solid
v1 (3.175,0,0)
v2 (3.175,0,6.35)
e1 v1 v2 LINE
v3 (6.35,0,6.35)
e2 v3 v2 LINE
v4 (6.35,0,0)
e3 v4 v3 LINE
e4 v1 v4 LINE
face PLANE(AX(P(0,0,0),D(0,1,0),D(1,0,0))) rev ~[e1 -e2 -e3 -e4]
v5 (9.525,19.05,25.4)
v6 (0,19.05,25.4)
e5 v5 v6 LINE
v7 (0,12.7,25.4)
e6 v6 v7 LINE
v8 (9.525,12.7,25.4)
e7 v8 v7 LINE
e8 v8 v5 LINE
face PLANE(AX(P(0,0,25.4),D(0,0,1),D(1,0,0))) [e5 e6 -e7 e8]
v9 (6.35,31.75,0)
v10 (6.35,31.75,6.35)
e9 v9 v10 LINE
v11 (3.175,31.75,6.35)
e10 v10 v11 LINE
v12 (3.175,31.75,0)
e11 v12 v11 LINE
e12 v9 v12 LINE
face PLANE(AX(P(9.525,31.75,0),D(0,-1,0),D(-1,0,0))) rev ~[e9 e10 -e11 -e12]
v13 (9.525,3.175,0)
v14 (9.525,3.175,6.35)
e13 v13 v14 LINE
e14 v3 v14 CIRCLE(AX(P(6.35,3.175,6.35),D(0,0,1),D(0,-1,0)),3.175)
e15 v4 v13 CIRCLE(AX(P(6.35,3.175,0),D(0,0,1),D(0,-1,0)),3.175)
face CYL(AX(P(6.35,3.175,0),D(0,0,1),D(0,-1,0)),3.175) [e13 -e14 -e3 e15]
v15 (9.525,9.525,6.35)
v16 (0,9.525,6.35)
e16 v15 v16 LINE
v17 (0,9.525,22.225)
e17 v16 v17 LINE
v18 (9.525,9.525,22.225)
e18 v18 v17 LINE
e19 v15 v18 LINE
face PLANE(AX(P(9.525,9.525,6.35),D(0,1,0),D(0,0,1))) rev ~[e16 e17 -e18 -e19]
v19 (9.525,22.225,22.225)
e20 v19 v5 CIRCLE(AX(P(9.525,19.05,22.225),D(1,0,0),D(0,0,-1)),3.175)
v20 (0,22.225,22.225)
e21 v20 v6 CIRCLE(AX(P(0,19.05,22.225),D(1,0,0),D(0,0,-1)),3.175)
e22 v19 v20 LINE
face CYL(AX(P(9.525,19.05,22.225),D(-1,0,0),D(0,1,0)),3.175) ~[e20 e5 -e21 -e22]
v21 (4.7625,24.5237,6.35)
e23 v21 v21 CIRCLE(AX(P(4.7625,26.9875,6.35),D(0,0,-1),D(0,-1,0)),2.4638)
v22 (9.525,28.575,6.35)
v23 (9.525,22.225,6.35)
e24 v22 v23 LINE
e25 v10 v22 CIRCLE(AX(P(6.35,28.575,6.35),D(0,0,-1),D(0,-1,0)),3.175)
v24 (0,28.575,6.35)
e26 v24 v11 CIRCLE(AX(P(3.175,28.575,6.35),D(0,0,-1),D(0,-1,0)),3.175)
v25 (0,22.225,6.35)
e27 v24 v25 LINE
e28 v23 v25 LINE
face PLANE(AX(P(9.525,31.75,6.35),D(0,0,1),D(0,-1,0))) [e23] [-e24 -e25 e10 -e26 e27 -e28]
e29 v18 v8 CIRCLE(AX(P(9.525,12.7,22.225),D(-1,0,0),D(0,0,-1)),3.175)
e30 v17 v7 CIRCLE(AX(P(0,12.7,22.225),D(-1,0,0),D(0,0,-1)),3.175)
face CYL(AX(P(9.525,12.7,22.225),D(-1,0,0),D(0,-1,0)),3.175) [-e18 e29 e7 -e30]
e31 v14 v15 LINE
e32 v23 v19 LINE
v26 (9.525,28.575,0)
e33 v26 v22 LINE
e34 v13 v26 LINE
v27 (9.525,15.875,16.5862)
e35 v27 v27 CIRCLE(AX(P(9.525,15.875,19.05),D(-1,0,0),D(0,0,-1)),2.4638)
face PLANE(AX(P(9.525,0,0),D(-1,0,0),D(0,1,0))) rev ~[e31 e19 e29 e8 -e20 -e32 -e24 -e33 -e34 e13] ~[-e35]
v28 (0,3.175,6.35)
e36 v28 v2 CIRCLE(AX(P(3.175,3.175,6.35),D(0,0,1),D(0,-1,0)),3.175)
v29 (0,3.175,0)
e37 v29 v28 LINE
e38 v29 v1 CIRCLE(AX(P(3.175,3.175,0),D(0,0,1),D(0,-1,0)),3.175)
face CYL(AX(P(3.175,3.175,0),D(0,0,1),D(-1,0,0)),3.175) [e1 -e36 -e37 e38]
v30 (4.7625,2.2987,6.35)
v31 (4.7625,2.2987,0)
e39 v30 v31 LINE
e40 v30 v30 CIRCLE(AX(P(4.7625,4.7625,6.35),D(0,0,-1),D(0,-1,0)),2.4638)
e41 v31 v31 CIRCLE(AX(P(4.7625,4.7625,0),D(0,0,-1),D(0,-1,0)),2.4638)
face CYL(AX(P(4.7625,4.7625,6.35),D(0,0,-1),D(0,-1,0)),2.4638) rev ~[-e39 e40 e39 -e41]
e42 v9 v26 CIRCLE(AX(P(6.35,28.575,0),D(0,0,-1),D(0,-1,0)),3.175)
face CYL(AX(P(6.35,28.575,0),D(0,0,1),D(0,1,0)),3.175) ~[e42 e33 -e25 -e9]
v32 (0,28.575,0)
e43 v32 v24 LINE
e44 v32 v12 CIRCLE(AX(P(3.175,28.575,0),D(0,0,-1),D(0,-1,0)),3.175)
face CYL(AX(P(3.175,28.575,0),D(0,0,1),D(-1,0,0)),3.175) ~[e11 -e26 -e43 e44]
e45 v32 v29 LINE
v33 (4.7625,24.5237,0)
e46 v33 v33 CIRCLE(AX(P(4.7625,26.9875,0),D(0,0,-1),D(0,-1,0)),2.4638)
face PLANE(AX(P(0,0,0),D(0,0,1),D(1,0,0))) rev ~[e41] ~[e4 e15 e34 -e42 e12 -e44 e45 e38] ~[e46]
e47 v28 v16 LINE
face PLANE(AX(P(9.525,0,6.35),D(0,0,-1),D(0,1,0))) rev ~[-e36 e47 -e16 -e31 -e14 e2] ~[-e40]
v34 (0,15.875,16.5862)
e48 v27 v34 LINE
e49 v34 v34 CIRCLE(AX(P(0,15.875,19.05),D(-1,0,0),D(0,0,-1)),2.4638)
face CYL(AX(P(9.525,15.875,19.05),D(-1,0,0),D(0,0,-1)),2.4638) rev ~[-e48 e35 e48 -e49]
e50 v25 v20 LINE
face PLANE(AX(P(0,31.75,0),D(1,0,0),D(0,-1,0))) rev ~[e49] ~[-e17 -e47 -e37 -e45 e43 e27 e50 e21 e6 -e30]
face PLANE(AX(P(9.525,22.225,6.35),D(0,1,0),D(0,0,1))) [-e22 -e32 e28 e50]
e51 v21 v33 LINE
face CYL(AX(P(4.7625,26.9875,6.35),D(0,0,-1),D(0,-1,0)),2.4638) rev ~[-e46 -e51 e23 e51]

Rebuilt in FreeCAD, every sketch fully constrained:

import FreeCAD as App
import Part
import Sketcher
Q = App.Units.Quantity


def edges_at(feature, points):
    """Names of the edges that pass closest to the given points."""
    edges = feature.Shape.Edges
    near = lambda p: min(range(len(edges)), key=lambda i: edges[i].distToShape(Part.Vertex(*p))[0])
    return sorted({f"Edge{near(p) + 1}" for p in points})

doc = App.newDocument("Part")
params = doc.addObject("Spreadsheet::Sheet", "Params")
for row, (alias, value) in enumerate([
    ("sketch1_height", "1.25 in"),
    ("sketch1_width", "0.375 in"),
    ("pad1_length", "1 in"),
    ("sketch2_height", "0.75 in"),
    ("sketch2_width", "0.375 in"),
    ("pocket1_length", "1 in"),
    ("fillet_radius", "0.125 in"),
    ("fillet2_radius", "0.125 in"),
    ("sketch3_diameter", "0.194 in"),
    ("hole_diameter", "0.194 in"),
    ("hole_depth", "1 in"),
    ("sketch4_diameter", "0.194 in"),
    ("hole2_diameter", "0.194 in"),
    ("hole2_depth", "1 in"),
], start=1):
    params.set(f"A{row}", alias)
    params.set(f"B{row}", "=" + value)
    params.setAlias(f"B{row}", alias)

body = doc.addObject("PartDesign::Body", "Body")

# Sketch on XY plane
sketch1 = body.newObject("Sketcher::SketchObject", "Sketch")
sketch1.AttachmentSupport = (doc.getObject("XY_Plane"), [""])
sketch1.MapMode = "FlatFace"
sketch1.addGeometry(Part.LineSegment(App.Vector(0, 31.75, 0), App.Vector(0, 0, 0)), False)
sketch1.addGeometry(Part.LineSegment(App.Vector(0, 0, 0), App.Vector(9.525, 0, 0)), False)
sketch1.addGeometry(Part.LineSegment(App.Vector(9.525, 0, 0), App.Vector(9.525, 31.75, 0)), False)
sketch1.addGeometry(Part.LineSegment(App.Vector(9.525, 31.75, 0), App.Vector(0, 31.75, 0)), False)
sketch1.addConstraint(Sketcher.Constraint("Coincident", 0, 2, 1, 1))
sketch1.addConstraint(Sketcher.Constraint("Coincident", 1, 2, 2, 1))
sketch1.addConstraint(Sketcher.Constraint("Coincident", 2, 2, 3, 1))
sketch1.addConstraint(Sketcher.Constraint("Coincident", 3, 2, 0, 1))
sketch1.addConstraint(Sketcher.Constraint("Vertical", 0))
sketch1.addConstraint(Sketcher.Constraint("Horizontal", 1))
sketch1.addConstraint(Sketcher.Constraint("Vertical", 2))
sketch1.addConstraint(Sketcher.Constraint("Horizontal", 3))
sketch1.addConstraint(Sketcher.Constraint("Coincident", 0, 2, -1, 1))
sketch1.addConstraint(Sketcher.Constraint("DistanceY", 0, 2, 0, 1, Q("1.25 in")))
sketch1.addConstraint(Sketcher.Constraint("DistanceX", 1, 1, 1, 2, Q("0.375 in")))
sketch1.setExpression("Constraints[9]", "Params.sketch1_height")
sketch1.setExpression("Constraints[10]", "Params.sketch1_width")
pad1 = body.newObject("PartDesign::Pad", "Pad")
pad1.Profile = sketch1
pad1.setExpression("Length", "Params.pad1_length")

# Sketch on YZ plane
sketch2 = body.newObject("Sketcher::SketchObject", "Sketch001")
sketch2.AttachmentSupport = (doc.getObject("YZ_Plane"), [""])
sketch2.MapMode = "FlatFace"
sketch2.AttachmentOffset = App.Placement(App.Vector(0, 0, 0.375 * 25.4), App.Rotation())
sketch2.addGeometry(Part.LineSegment(App.Vector(31.75, 25.4, 0), App.Vector(22.225, 25.4, 0)), False)
sketch2.addGeometry(Part.LineSegment(App.Vector(22.225, 25.4, 0), App.Vector(22.225, 6.35, 0)), False)
sketch2.addGeometry(Part.LineSegment(App.Vector(22.225, 6.35, 0), App.Vector(31.75, 6.35, 0)), False)
sketch2.addGeometry(Part.LineSegment(App.Vector(31.75, 6.35, 0), App.Vector(31.75, 25.4, 0)), False)
sketch2.addGeometry(Part.LineSegment(App.Vector(9.525, 25.4, 0), App.Vector(0, 25.4, 0)), False)
sketch2.addGeometry(Part.LineSegment(App.Vector(0, 25.4, 0), App.Vector(0, 6.35, 0)), False)
sketch2.addGeometry(Part.LineSegment(App.Vector(0, 6.35, 0), App.Vector(9.525, 6.35, 0)), False)
sketch2.addGeometry(Part.LineSegment(App.Vector(9.525, 6.35, 0), App.Vector(9.525, 25.4, 0)), False)
sketch2.addConstraint(Sketcher.Constraint("Coincident", 0, 2, 1, 1))
sketch2.addConstraint(Sketcher.Constraint("Coincident", 1, 2, 2, 1))
sketch2.addConstraint(Sketcher.Constraint("Coincident", 2, 2, 3, 1))
sketch2.addConstraint(Sketcher.Constraint("Coincident", 3, 2, 0, 1))
sketch2.addConstraint(Sketcher.Constraint("Coincident", 4, 2, 5, 1))
sketch2.addConstraint(Sketcher.Constraint("Coincident", 5, 2, 6, 1))
sketch2.addConstraint(Sketcher.Constraint("Coincident", 6, 2, 7, 1))
sketch2.addConstraint(Sketcher.Constraint("Coincident", 7, 2, 4, 1))
sketch2.addConstraint(Sketcher.Constraint("Horizontal", 0))
sketch2.addConstraint(Sketcher.Constraint("Vertical", 1))
sketch2.addConstraint(Sketcher.Constraint("Horizontal", 2))
sketch2.addConstraint(Sketcher.Constraint("Vertical", 3))
sketch2.addConstraint(Sketcher.Constraint("Horizontal", 4))
sketch2.addConstraint(Sketcher.Constraint("Vertical", 5))
sketch2.addConstraint(Sketcher.Constraint("Horizontal", 6))
sketch2.addConstraint(Sketcher.Constraint("Vertical", 7))
sketch2.addConstraint(Sketcher.Constraint("PointOnObject", 4, 2, -2))
sketch2.addConstraint(Sketcher.Constraint("Horizontal", 3, 2, 4, 2))
sketch2.addConstraint(Sketcher.Constraint("Horizontal", 2, 2, 5, 2))
sketch2.addConstraint(Sketcher.Constraint("Equal", 2, 4))
sketch2.addConstraint(Sketcher.Constraint("DistanceY", 1, 2, 1, 1, Q("0.75 in")))
sketch2.addConstraint(Sketcher.Constraint("DistanceX", 0, 2, 0, 1, Q("0.375 in")))
sketch2.addConstraint(Sketcher.Constraint("DistanceY", -1, 1, 0, 2, Q("1 in")))
sketch2.addConstraint(Sketcher.Constraint("DistanceX", 6, 2, 1, 2, Q("0.5 in")))
sketch2.setExpression("Constraints[20]", "Params.sketch2_height")
sketch2.setExpression("Constraints[21]", "Params.sketch2_width")
pocket1 = body.newObject("PartDesign::Pocket", "Pocket")
pocket1.Profile = sketch2
pocket1.setExpression("Length", "Params.pocket1_length")
doc.recompute()

fillet = body.newObject("PartDesign::Fillet", "Fillet")
fillet.Base = (pocket1, edges_at(pocket1, [
    (9.525, 31.75, 3.175),
    (0, 31.75, 3.175),
    (9.525, 0, 3.175),
    (0, 0, 3.175),
]))
fillet.setExpression("Radius", "Params.fillet_radius")
doc.recompute()

fillet2 = body.newObject("PartDesign::Fillet", "Fillet001")
fillet2.Base = (fillet, edges_at(fillet, [(4.763, 9.525, 25.4), (4.763, 22.225, 25.4)]))
fillet2.setExpression("Radius", "Params.fillet2_radius")

# Sketch on YZ plane
sketch3 = body.newObject("Sketcher::SketchObject", "Sketch002")
sketch3.AttachmentSupport = (doc.getObject("YZ_Plane"), [""])
sketch3.MapMode = "FlatFace"
sketch3.AttachmentOffset = App.Placement(App.Vector(0, 0, 0.375 * 25.4), App.Rotation())
sketch3.addGeometry(Part.Circle(App.Vector(15.875, 19.05, 0), App.Vector(0, 0, 1), 2.4638), False)
sketch3.addConstraint(Sketcher.Constraint("Diameter", 0, Q("0.194 in")))
sketch3.addConstraint(Sketcher.Constraint("DistanceY", -1, 1, 0, 3, Q("0.75 in")))
sketch3.addConstraint(Sketcher.Constraint("DistanceX", -1, 1, 0, 3, Q("0.625 in")))
sketch3.setExpression("Constraints[0]", "Params.sketch3_diameter")
doc.recompute()
hole = body.newObject("PartDesign::Hole", "Hole")
hole.Profile = sketch3
hole.ThreadType = "None"
hole.setExpression("Diameter", "Params.hole_diameter")
hole.DepthType = "Dimension"
hole.setExpression("Depth", "Params.hole_depth")
hole.DrillPoint = "Angled"
hole.DrillPointAngle = 118

# Sketch on XY plane
sketch4 = body.newObject("Sketcher::SketchObject", "Sketch003")
sketch4.AttachmentSupport = (doc.getObject("XY_Plane"), [""])
sketch4.MapMode = "FlatFace"
sketch4.AttachmentOffset = App.Placement(App.Vector(0, 0, 0.25 * 25.4), App.Rotation())
sketch4.addGeometry(Part.Circle(App.Vector(4.7625, 4.7625, 0), App.Vector(0, 0, 1), 2.4638), False)
sketch4.addGeometry(Part.Circle(App.Vector(4.7625, 26.9875, 0), App.Vector(0, 0, 1), 2.4638), False)
sketch4.addConstraint(Sketcher.Constraint("Equal", 0, 1))
sketch4.addConstraint(Sketcher.Constraint("Vertical", 0, 3, 1, 3))
sketch4.addConstraint(Sketcher.Constraint("Diameter", 0, Q("0.194 in")))
sketch4.addConstraint(Sketcher.Constraint("DistanceX", -1, 1, 0, 3, Q("0.1875 in")))
sketch4.addConstraint(Sketcher.Constraint("DistanceY", -1, 1, 0, 3, Q("0.1875 in")))
sketch4.addConstraint(Sketcher.Constraint("DistanceY", -1, 1, 1, 3, Q("1.0625 in")))
sketch4.setExpression("Constraints[2]", "Params.sketch4_diameter")
doc.recompute()
hole2 = body.newObject("PartDesign::Hole", "Hole001")
hole2.Profile = sketch4
hole2.ThreadType = "None"
hole2.setExpression("Diameter", "Params.hole2_diameter")
hole2.DepthType = "Dimension"
hole2.setExpression("Depth", "Params.hole2_depth")
hole2.DrillPoint = "Angled"
hole2.DrillPointAngle = 118

doc.recompute()
